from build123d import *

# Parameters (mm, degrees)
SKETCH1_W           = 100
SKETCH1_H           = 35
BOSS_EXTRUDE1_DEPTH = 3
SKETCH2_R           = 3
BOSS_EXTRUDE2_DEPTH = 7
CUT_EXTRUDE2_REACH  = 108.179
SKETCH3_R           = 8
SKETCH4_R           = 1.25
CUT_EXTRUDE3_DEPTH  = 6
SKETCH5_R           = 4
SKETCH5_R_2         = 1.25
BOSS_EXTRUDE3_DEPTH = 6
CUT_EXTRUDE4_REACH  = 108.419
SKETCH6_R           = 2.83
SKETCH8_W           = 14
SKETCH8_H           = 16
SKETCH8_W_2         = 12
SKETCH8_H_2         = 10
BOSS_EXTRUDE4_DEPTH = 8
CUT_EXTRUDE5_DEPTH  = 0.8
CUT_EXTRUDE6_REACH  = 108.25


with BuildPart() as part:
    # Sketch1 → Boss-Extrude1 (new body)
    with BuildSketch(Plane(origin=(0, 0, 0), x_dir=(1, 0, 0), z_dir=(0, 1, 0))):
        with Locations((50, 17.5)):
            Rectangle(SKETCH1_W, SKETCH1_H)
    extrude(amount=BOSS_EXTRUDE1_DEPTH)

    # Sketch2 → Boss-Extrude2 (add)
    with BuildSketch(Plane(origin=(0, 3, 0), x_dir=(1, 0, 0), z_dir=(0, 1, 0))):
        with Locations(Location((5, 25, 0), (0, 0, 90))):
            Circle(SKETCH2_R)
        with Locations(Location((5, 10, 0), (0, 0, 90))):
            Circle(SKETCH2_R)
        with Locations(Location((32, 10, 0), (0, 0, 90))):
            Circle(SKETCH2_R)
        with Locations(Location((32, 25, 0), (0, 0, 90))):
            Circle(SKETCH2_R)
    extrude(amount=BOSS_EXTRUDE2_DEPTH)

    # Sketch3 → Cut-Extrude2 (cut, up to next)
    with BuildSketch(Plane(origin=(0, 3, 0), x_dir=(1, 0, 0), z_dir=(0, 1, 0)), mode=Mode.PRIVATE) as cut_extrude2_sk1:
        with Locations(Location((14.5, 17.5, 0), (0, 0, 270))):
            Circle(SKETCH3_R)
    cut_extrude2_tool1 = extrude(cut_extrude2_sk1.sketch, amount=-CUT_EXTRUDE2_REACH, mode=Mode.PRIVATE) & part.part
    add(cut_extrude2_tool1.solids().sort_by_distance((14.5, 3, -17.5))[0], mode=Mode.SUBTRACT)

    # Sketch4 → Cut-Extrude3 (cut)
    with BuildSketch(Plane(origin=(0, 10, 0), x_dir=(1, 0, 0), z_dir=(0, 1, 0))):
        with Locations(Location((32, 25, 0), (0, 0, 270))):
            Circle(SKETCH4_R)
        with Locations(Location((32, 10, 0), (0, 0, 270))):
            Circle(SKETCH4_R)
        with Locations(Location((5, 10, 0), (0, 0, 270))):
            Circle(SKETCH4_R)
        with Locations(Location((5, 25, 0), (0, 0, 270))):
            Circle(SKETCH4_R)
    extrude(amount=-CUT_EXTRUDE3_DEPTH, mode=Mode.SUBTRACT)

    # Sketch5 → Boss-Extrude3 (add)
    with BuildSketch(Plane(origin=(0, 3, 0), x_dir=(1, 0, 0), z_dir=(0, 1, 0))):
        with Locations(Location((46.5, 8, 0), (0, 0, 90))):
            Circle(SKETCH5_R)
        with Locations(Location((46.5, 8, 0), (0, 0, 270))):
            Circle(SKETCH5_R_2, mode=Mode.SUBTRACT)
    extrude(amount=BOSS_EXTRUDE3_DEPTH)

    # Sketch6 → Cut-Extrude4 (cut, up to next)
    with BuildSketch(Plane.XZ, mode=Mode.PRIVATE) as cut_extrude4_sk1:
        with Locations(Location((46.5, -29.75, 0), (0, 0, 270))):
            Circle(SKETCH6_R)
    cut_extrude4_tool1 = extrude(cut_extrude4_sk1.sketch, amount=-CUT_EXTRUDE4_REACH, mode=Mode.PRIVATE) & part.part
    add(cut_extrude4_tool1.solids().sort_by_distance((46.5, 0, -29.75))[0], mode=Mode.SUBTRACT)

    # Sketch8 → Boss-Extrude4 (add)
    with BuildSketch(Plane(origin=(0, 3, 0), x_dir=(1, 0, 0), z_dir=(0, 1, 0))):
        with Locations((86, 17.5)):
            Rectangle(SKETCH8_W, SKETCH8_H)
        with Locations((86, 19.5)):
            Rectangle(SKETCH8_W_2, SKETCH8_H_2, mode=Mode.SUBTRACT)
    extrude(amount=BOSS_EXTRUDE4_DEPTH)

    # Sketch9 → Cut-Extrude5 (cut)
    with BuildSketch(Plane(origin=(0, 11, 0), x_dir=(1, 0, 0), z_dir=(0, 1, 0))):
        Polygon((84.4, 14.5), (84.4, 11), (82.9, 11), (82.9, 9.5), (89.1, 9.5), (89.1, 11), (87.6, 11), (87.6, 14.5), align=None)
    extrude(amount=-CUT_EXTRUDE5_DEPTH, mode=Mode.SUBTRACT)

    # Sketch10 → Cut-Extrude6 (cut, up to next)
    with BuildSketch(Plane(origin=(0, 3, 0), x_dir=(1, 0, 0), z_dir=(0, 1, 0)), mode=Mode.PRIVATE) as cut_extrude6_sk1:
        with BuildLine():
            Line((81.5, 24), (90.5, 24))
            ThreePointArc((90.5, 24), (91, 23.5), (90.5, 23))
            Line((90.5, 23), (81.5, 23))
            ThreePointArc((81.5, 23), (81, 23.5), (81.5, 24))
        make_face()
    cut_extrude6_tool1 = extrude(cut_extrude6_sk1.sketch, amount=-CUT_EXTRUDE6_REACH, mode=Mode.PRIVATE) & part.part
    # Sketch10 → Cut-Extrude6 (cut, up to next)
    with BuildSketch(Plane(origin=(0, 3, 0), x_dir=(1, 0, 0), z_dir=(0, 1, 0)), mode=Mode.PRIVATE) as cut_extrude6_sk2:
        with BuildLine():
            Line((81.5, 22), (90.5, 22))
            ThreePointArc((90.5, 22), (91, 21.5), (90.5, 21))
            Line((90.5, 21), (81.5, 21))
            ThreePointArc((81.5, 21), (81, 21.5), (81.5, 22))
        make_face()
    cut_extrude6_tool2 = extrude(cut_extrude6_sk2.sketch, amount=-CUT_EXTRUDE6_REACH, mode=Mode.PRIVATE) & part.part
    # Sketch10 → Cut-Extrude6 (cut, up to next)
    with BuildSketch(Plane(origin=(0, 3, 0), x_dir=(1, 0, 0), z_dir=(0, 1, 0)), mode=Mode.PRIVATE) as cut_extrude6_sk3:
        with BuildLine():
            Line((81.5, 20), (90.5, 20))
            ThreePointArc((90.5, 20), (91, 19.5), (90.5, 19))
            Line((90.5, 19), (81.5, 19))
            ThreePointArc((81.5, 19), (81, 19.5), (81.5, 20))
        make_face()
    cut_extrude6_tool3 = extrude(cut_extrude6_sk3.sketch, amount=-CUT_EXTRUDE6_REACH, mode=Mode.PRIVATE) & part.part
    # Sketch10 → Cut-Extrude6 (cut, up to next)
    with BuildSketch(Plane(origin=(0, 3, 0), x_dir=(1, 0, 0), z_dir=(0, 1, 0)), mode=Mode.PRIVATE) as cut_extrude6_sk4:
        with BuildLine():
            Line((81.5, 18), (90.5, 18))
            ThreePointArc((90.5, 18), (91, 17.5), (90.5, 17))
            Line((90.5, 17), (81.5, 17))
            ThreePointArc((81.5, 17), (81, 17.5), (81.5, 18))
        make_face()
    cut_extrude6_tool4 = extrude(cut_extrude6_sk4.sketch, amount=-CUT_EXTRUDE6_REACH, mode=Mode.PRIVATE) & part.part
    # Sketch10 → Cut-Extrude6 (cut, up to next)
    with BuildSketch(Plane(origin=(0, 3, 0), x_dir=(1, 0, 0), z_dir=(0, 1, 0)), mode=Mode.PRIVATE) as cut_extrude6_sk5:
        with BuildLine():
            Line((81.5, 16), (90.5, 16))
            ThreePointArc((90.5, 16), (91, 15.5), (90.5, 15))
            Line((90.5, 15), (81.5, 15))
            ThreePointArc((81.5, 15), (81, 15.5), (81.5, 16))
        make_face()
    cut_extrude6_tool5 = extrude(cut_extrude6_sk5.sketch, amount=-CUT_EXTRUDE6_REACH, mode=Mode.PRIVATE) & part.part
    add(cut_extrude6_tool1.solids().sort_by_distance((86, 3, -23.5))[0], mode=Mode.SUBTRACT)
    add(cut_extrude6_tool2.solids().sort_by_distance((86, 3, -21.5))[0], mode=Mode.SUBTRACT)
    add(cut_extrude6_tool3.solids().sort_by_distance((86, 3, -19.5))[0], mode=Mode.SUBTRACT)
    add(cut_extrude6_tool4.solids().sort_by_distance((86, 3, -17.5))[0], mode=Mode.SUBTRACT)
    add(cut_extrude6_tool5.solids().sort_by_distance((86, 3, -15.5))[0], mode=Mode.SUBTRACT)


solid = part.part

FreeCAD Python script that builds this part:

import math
import FreeCAD as App
import Part
import Sketcher
from FreeCAD import Vector

doc = App.newDocument("Part")
body = doc.addObject("PartDesign::Body", "Body")

# Sketch on XZ plane
sketch1 = body.newObject("Sketcher::SketchObject", "Sketch")
sketch1.AttachmentSupport = (doc.getObject("XZ_Plane"), [""])
sketch1.MapMode = "FlatFace"
sketch1.addGeometry([
    Part.LineSegment(Vector(0, -35, 0), Vector(0, 0, 0)),
    Part.LineSegment(Vector(0, 0, 0), Vector(100, 0, 0)),
    Part.LineSegment(Vector(100, 0, 0), Vector(100, -35, 0)),
    Part.LineSegment(Vector(100, -35, 0), Vector(0, -35, 0)),
], False)
sketch1.addConstraint([
    Sketcher.Constraint("Coincident", 0, 2, 1, 1),
    Sketcher.Constraint("Coincident", 1, 2, 2, 1),
    Sketcher.Constraint("Coincident", 2, 2, 3, 1),
    Sketcher.Constraint("Coincident", 3, 2, 0, 1),
    Sketcher.Constraint("Vertical", 0),
    Sketcher.Constraint("Horizontal", 1),
    Sketcher.Constraint("Vertical", 2),
    Sketcher.Constraint("Horizontal", 3),
    Sketcher.Constraint("Coincident", 0, 2, -1, 1),
    Sketcher.Constraint("DistanceX", 1, 1, 1, 2, 100.0),
    Sketcher.Constraint("DistanceY", 0, 1, 0, 2, 35.0),
])
pad1 = body.newObject("PartDesign::Pad", "Pad")
pad1.Profile = sketch1
pad1.Length = 3
pad1.Reversed = True

# Sketch on XZ plane
sketch2 = body.newObject("Sketcher::SketchObject", "Sketch001")
sketch2.AttachmentSupport = (doc.getObject("XZ_Plane"), [""])
sketch2.MapMode = "FlatFace"
sketch2.AttachmentOffset = App.Placement(Vector(0, 0, -3), App.Rotation())
sketch2.addGeometry([
    Part.Circle(Vector(5, -25, 0), Vector(0, 0, 1), 3),
    Part.Circle(Vector(5, -10, 0), Vector(0, 0, 1), 3),
    Part.Circle(Vector(32, -10, 0), Vector(0, 0, 1), 3),
    Part.Circle(Vector(32, -25, 0), Vector(0, 0, 1), 3),
], False)
sketch2.addConstraint([
    Sketcher.Constraint("Equal", 0, 1),
    Sketcher.Constraint("Equal", 1, 2),
    Sketcher.Constraint("Equal", 2, 3),
    Sketcher.Constraint("Horizontal", 1, 3, 2, 3),
    Sketcher.Constraint("Horizontal", 0, 3, 3, 3),
    Sketcher.Constraint("Vertical", 0, 3, 1, 3),
    Sketcher.Constraint("Vertical", 2, 3, 3, 3),
    Sketcher.Constraint("Diameter", 0, 6.0),
    Sketcher.Constraint("DistanceX", -1, 1, 0, 3, 5.0),
    Sketcher.Constraint("DistanceY", 0, 3, -1, 1, 25.0),
    Sketcher.Constraint("DistanceY", 1, 3, -1, 1, 10.0),
    Sketcher.Constraint("DistanceX", -1, 1, 2, 3, 32.0),
])
pad2 = body.newObject("PartDesign::Pad", "Pad001")
pad2.Profile = sketch2
pad2.Length = 7
pad2.Reversed = True

# Sketch on XZ plane
sketch3 = body.newObject("Sketcher::SketchObject", "Sketch002")
sketch3.AttachmentSupport = (doc.getObject("XZ_Plane"), [""])
sketch3.MapMode = "FlatFace"
sketch3.AttachmentOffset = App.Placement(Vector(0, 0, -3), App.Rotation())
sketch3.addGeometry(Part.Circle(Vector(14, -18, 0), Vector(0, 0, 1), 8), False)
sketch3.addConstraint([
    Sketcher.Constraint("Diameter", 0, 16.0),
    Sketcher.Constraint("DistanceX", -1, 1, 0, 3, 14.5),
    Sketcher.Constraint("DistanceY", 0, 3, -1, 1, 17.5),
])
pocket1 = body.newObject("PartDesign::Pocket", "Pocket")
pocket1.Profile = sketch3
pocket1.Type = "UpToFirst"
pocket1.Reversed = True

# Sketch on XZ plane
sketch4 = body.newObject("Sketcher::SketchObject", "Sketch003")
sketch4.AttachmentSupport = (doc.getObject("XZ_Plane"), [""])
sketch4.MapMode = "FlatFace"
sketch4.AttachmentOffset = App.Placement(Vector(0, 0, -10), App.Rotation())
sketch4.addGeometry([
    Part.Circle(Vector(32, -25, 0), Vector(0, 0, 1), 1.2),
    Part.Circle(Vector(32, -10, 0), Vector(0, 0, 1), 1.2),
    Part.Circle(Vector(5, -10, 0), Vector(0, 0, 1), 1.2),
    Part.Circle(Vector(5, -25, 0), Vector(0, 0, 1), 1.2),
], False)
sketch4.addConstraint([
    Sketcher.Constraint("Equal", 0, 1),
    Sketcher.Constraint("Equal", 1, 2),
    Sketcher.Constraint("Equal", 2, 3),
    Sketcher.Constraint("Horizontal", 1, 3, 2, 3),
    Sketcher.Constraint("Horizontal", 0, 3, 3, 3),
    Sketcher.Constraint("Vertical", 0, 3, 1, 3),
    Sketcher.Constraint("Vertical", 2, 3, 3, 3),
    Sketcher.Constraint("Diameter", 0, 2.5),
    Sketcher.Constraint("DistanceX", -1, 1, 0, 3, 32.0),
    Sketcher.Constraint("DistanceY", 0, 3, -1, 1, 25.0),
    Sketcher.Constraint("DistanceY", 1, 3, -1, 1, 10.0),
    Sketcher.Constraint("DistanceX", -1, 1, 2, 3, 5.0),
])
pocket2 = body.newObject("PartDesign::Pocket", "Pocket001")
pocket2.Profile = sketch4
pocket2.Length = 6
pocket2.Reversed = True

# Sketch on XZ plane
sketch5 = body.newObject("Sketcher::SketchObject", "Sketch004")
sketch5.AttachmentSupport = (doc.getObject("XZ_Plane"), [""])
sketch5.MapMode = "FlatFace"
sketch5.AttachmentOffset = App.Placement(Vector(0, 0, -3), App.Rotation())
sketch5.addGeometry([
    Part.Circle(Vector(46.5, -8, 0), Vector(0, 0, 1), 4),
    Part.Circle(Vector(46.5, -8, 0), Vector(0, 0, 1), 1.2),
], False)
sketch5.addConstraint([
    Sketcher.Constraint("Coincident", 1, 3, 0, 3),
    Sketcher.Constraint("Diameter", 0, 8.0),
    Sketcher.Constraint("Diameter", 1, 2.5),
    Sketcher.Constraint("DistanceY", 0, 3, -1, 1, 8.0),
    Sketcher.Constraint("DistanceX", -1, 1, 0, 3, 46.5),
])
pad3 = body.newObject("PartDesign::Pad", "Pad002")
pad3.Profile = sketch5
pad3.Length = 6
pad3.Reversed = True

# Sketch on XZ plane
sketch6 = body.newObject("Sketcher::SketchObject", "Sketch005")
sketch6.AttachmentSupport = (doc.getObject("XZ_Plane"), [""])
sketch6.MapMode = "FlatFace"
sketch6.addGeometry(Part.Circle(Vector(46.5, -29.8, 0), Vector(0, 0, 1), 2.8), False)
sketch6.addConstraint([
    Sketcher.Constraint("Diameter", 0, 5.66),
    Sketcher.Constraint("DistanceX", -1, 1, 0, 3, 46.5),
    Sketcher.Constraint("DistanceY", 0, 3, -1, 1, 29.75),
])
pocket3 = body.newObject("PartDesign::Pocket", "Pocket002")
pocket3.Profile = sketch6
pocket3.Type = "UpToFirst"

# Sketch on XZ plane
sketch7 = body.newObject("Sketcher::SketchObject", "Sketch006")
sketch7.AttachmentSupport = (doc.getObject("XZ_Plane"), [""])
sketch7.MapMode = "FlatFace"
sketch7.AttachmentOffset = App.Placement(Vector(0, 0, -3), App.Rotation())
sketch7.addGeometry([
    Part.LineSegment(Vector(79, -26, 0), Vector(79, -10, 0)),  # 0
    Part.LineSegment(Vector(79, -10, 0), Vector(93, -10, 0)),  # 1
    Part.LineSegment(Vector(93, -10, 0), Vector(93, -26, 0)),  # 2
    Part.LineSegment(Vector(93, -26, 0), Vector(79, -26, 0)),  # 3
    Part.LineSegment(Vector(92, -14, 0), Vector(80, -14, 0)),  # 4
    Part.LineSegment(Vector(80, -14, 0), Vector(80, -24, 0)),  # 5
    Part.LineSegment(Vector(80, -24, 0), Vector(92, -24, 0)),  # 6
    Part.LineSegment(Vector(92, -24, 0), Vector(92, -14, 0)),  # 7
], False)
sketch7.addConstraint([
    Sketcher.Constraint("Coincident", 0, 2, 1, 1),
    Sketcher.Constraint("Coincident", 1, 2, 2, 1),
    Sketcher.Constraint("Coincident", 2, 2, 3, 1),
    Sketcher.Constraint("Coincident", 3, 2, 0, 1),
    Sketcher.Constraint("Coincident", 4, 2, 5, 1),
    Sketcher.Constraint("Coincident", 5, 2, 6, 1),
    Sketcher.Constraint("Coincident", 6, 2, 7, 1),
    Sketcher.Constraint("Coincident", 7, 2, 4, 1),
    Sketcher.Constraint("Vertical", 0),
    Sketcher.Constraint("Horizontal", 1),
    Sketcher.Constraint("Vertical", 2),
    Sketcher.Constraint("Horizontal", 3),
    Sketcher.Constraint("Horizontal", 4),
    Sketcher.Constraint("Vertical", 5),
    Sketcher.Constraint("Horizontal", 6),
    Sketcher.Constraint("Vertical", 7),
    Sketcher.Constraint("DistanceX", 1, 1, 1, 2, 14.0),
    Sketcher.Constraint("DistanceX", 4, 2, 4, 1, 12.0),
    Sketcher.Constraint("DistanceY", 0, 1, 0, 2, 16.0),
    Sketcher.Constraint("DistanceY", 5, 2, 5, 1, 10.0),
    Sketcher.Constraint("DistanceX", -1, 1, 0, 2, 79.0),
    Sketcher.Constraint("DistanceX", -1, 1, 4, 2, 80.0),
    Sketcher.Constraint("DistanceY", 4, 2, 0, 2, 5.0),
    Sketcher.Constraint("DistanceY", 0, 2, -1, 1, 9.5),
])
pad4 = body.newObject("PartDesign::Pad", "Pad003")
pad4.Profile = sketch7
pad4.Length = 8
pad4.Reversed = True

# Sketch on XZ plane
sketch8 = body.newObject("Sketcher::SketchObject", "Sketch007")
sketch8.AttachmentSupport = (doc.getObject("XZ_Plane"), [""])
sketch8.MapMode = "FlatFace"
sketch8.AttachmentOffset = App.Placement(Vector(0, 0, -11), App.Rotation())
sketch8.addGeometry([
    Part.LineSegment(Vector(84.4, -14.5, 0), Vector(84.4, -11, 0)),  # 0
    Part.LineSegment(Vector(84.4, -11, 0), Vector(82.9, -11, 0)),  # 1
    Part.LineSegment(Vector(82.9, -11, 0), Vector(82.9, -9.5, 0)),  # 2
    Part.LineSegment(Vector(82.9, -9.5, 0), Vector(89.1, -9.5, 0)),  # 3
    Part.LineSegment(Vector(89.1, -9.5, 0), Vector(89.1, -11, 0)),  # 4
    Part.LineSegment(Vector(89.1, -11, 0), Vector(87.6, -11, 0)),  # 5
    Part.LineSegment(Vector(87.6, -11, 0), Vector(87.6, -14.5, 0)),  # 6
    Part.LineSegment(Vector(87.6, -14.5, 0), Vector(84.4, -14.5, 0)),  # 7
], False)
sketch8.addConstraint([
    Sketcher.Constraint("Coincident", 0, 2, 1, 1),
    Sketcher.Constraint("Coincident", 1, 2, 2, 1),
    Sketcher.Constraint("Coincident", 2, 2, 3, 1),
    Sketcher.Constraint("Coincident", 3, 2, 4, 1),
    Sketcher.Constraint("Coincident", 4, 2, 5, 1),
    Sketcher.Constraint("Coincident", 5, 2, 6, 1),
    Sketcher.Constraint("Coincident", 6, 2, 7, 1),
    Sketcher.Constraint("Coincident", 7, 2, 0, 1),
    Sketcher.Constraint("Vertical", 0),
    Sketcher.Constraint("Horizontal", 1),
    Sketcher.Constraint("Vertical", 2),
    Sketcher.Constraint("Horizontal", 3),
    Sketcher.Constraint("Vertical", 4),
    Sketcher.Constraint("Horizontal", 5),
    Sketcher.Constraint("Vertical", 6),
    Sketcher.Constraint("Horizontal", 7),
    Sketcher.Constraint("Horizontal", 1, 2, 4, 2),
    Sketcher.Constraint("Equal", 1, 5),
    Sketcher.Constraint("Equal", 5, 2),
    Sketcher.Constraint("DistanceX", 1, 2, 1, 1, 1.5),
    Sketcher.Constraint("DistanceX", 3, 1, 3, 2, 6.2),
    Sketcher.Constraint("DistanceY", 0, 1, 0, 2, 3.5),
    Sketcher.Constraint("DistanceY", 0, 2, -1, 1, 11.0),
    Sketcher.Constraint("DistanceX", -1, 1, 0, 2, 84.4),
])
pocket4 = body.newObject("PartDesign::Pocket", "Pocket003")
pocket4.Profile = sketch8
pocket4.Length = 0.8
pocket4.Reversed = True

# Sketch on XZ plane
sketch9 = body.newObject("Sketcher::SketchObject", "Sketch008")
sketch9.AttachmentSupport = (doc.getObject("XZ_Plane"), [""])
sketch9.MapMode = "FlatFace"
sketch9.AttachmentOffset = App.Placement(Vector(0, 0, -3), App.Rotation())
sketch9.addGeometry([
    Part.LineSegment(Vector(90.5, -24, 0), Vector(81.5, -24, 0)),
    Part.ArcOfCircle(Part.Circle(Vector(81.5, -23.5, 0), Vector(0, 0, 1), 0.5), math.radians(90), math.radians(270)),
    Part.LineSegment(Vector(81.5, -23, 0), Vector(90.5, -23, 0)),
    Part.ArcOfCircle(Part.Circle(Vector(90.5, -23.5, 0), Vector(0, 0, 1), 0.5), math.radians(-90), math.radians(90)),
], False)
sketch9.addConstraint([
    Sketcher.Constraint("Tangent", 0, 2, 1, 2),
    Sketcher.Constraint("Tangent", 1, 1, 2, 1),
    Sketcher.Constraint("Tangent", 2, 2, 3, 2),
    Sketcher.Constraint("Tangent", 3, 1, 0, 1),
    Sketcher.Constraint("Horizontal", 0),
    Sketcher.Constraint("Horizontal", 2),
    Sketcher.Constraint("Radius", 1, 0.5),
    Sketcher.Constraint("DistanceX", 0, 2, 0, 1, 9.0),
    Sketcher.Constraint("DistanceY", 0, 2, -1, 1, 24.0),
    Sketcher.Constraint("DistanceX", -1, 1, 1, 3, 81.5),
])
pocket5 = body.newObject("PartDesign::Pocket", "Pocket004")
pocket5.Profile = sketch9
pocket5.Type = "UpToFirst"
pocket5.Reversed = True

# Sketch on XZ plane
sketch10 = body.newObject("Sketcher::SketchObject", "Sketch009")
sketch10.AttachmentSupport = (doc.getObject("XZ_Plane"), [""])
sketch10.MapMode = "FlatFace"
sketch10.AttachmentOffset = App.Placement(Vector(0, 0, -3), App.Rotation())
sketch10.addGeometry([
    Part.LineSegment(Vector(90.5, -22, 0), Vector(81.5, -22, 0)),
    Part.ArcOfCircle(Part.Circle(Vector(81.5, -21.5, 0), Vector(0, 0, 1), 0.5), math.radians(90), math.radians(270)),
    Part.LineSegment(Vector(81.5, -21, 0), Vector(90.5, -21, 0)),
    Part.ArcOfCircle(Part.Circle(Vector(90.5, -21.5, 0), Vector(0, 0, 1), 0.5), math.radians(-90), math.radians(90)),
], False)
sketch10.addConstraint([
    Sketcher.Constraint("Tangent", 0, 2, 1, 2),
    Sketcher.Constraint("Tangent", 1, 1, 2, 1),
    Sketcher.Constraint("Tangent", 2, 2, 3, 2),
    Sketcher.Constraint("Tangent", 3, 1, 0, 1),
    Sketcher.Constraint("Horizontal", 0),
    Sketcher.Constraint("Horizontal", 2),
    Sketcher.Constraint("Radius", 1, 0.5),
    Sketcher.Constraint("DistanceX", 0, 2, 0, 1, 9.0),
    Sketcher.Constraint("DistanceY", 0, 2, -1, 1, 22.0),
    Sketcher.Constraint("DistanceX", -1, 1, 1, 3, 81.5),
])
pocket6 = body.newObject("PartDesign::Pocket", "Pocket005")
pocket6.Profile = sketch10
pocket6.Type = "UpToFirst"
pocket6.Reversed = True

# Sketch on XZ plane
sketch11 = body.newObject("Sketcher::SketchObject", "Sketch010")
sketch11.AttachmentSupport = (doc.getObject("XZ_Plane"), [""])
sketch11.MapMode = "FlatFace"
sketch11.AttachmentOffset = App.Placement(Vector(0, 0, -3), App.Rotation())
sketch11.addGeometry([
    Part.LineSegment(Vector(90.5, -20, 0), Vector(81.5, -20, 0)),
    Part.ArcOfCircle(Part.Circle(Vector(81.5, -19.5, 0), Vector(0, 0, 1), 0.5), math.radians(90), math.radians(270)),
    Part.LineSegment(Vector(81.5, -19, 0), Vector(90.5, -19, 0)),
    Part.ArcOfCircle(Part.Circle(Vector(90.5, -19.5, 0), Vector(0, 0, 1), 0.5), math.radians(-90), math.radians(90)),
], False)
sketch11.addConstraint([
    Sketcher.Constraint("Tangent", 0, 2, 1, 2),
    Sketcher.Constraint("Tangent", 1, 1, 2, 1),
    Sketcher.Constraint("Tangent", 2, 2, 3, 2),
    Sketcher.Constraint("Tangent", 3, 1, 0, 1),
    Sketcher.Constraint("Horizontal", 0),
    Sketcher.Constraint("Horizontal", 2),
    Sketcher.Constraint("Radius", 1, 0.5),
    Sketcher.Constraint("DistanceX", 0, 2, 0, 1, 9.0),
    Sketcher.Constraint("DistanceY", 0, 2, -1, 1, 20.0),
    Sketcher.Constraint("DistanceX", -1, 1, 1, 3, 81.5),
])
pocket7 = body.newObject("PartDesign::Pocket", "Pocket006")
pocket7.Profile = sketch11
pocket7.Type = "UpToFirst"
pocket7.Reversed = True

# Sketch on XZ plane
sketch12 = body.newObject("Sketcher::SketchObject", "Sketch011")
sketch12.AttachmentSupport = (doc.getObject("XZ_Plane"), [""])
sketch12.MapMode = "FlatFace"
sketch12.AttachmentOffset = App.Placement(Vector(0, 0, -3), App.Rotation())
sketch12.addGeometry([
    Part.LineSegment(Vector(90.5, -18, 0), Vector(81.5, -18, 0)),
    Part.ArcOfCircle(Part.Circle(Vector(81.5, -17.5, 0), Vector(0, 0, 1), 0.5), math.radians(90), math.radians(270)),
    Part.LineSegment(Vector(81.5, -17, 0), Vector(90.5, -17, 0)),
    Part.ArcOfCircle(Part.Circle(Vector(90.5, -17.5, 0), Vector(0, 0, 1), 0.5), math.radians(-90), math.radians(90)),
], False)
sketch12.addConstraint([
    Sketcher.Constraint("Tangent", 0, 2, 1, 2),
    Sketcher.Constraint("Tangent", 1, 1, 2, 1),
    Sketcher.Constraint("Tangent", 2, 2, 3, 2),
    Sketcher.Constraint("Tangent", 3, 1, 0, 1),
    Sketcher.Constraint("Horizontal", 0),
    Sketcher.Constraint("Horizontal", 2),
    Sketcher.Constraint("Radius", 1, 0.5),
    Sketcher.Constraint("DistanceX", 0, 2, 0, 1, 9.0),
    Sketcher.Constraint("DistanceY", 0, 2, -1, 1, 18.0),
    Sketcher.Constraint("DistanceX", -1, 1, 1, 3, 81.5),
])
pocket8 = body.newObject("PartDesign::Pocket", "Pocket007")
pocket8.Profile = sketch12
pocket8.Type = "UpToFirst"
pocket8.Reversed = True

# Sketch on XZ plane
sketch13 = body.newObject("Sketcher::SketchObject", "Sketch012")
sketch13.AttachmentSupport = (doc.getObject("XZ_Plane"), [""])
sketch13.MapMode = "FlatFace"
sketch13.AttachmentOffset = App.Placement(Vector(0, 0, -3), App.Rotation())
sketch13.addGeometry([
    Part.LineSegment(Vector(90.5, -16, 0), Vector(81.5, -16, 0)),
    Part.ArcOfCircle(Part.Circle(Vector(81.5, -15.5, 0), Vector(0, 0, 1), 0.5), math.radians(90), math.radians(270)),
    Part.LineSegment(Vector(81.5, -15, 0), Vector(90.5, -15, 0)),
    Part.ArcOfCircle(Part.Circle(Vector(90.5, -15.5, 0), Vector(0, 0, 1), 0.5), math.radians(-90), math.radians(90)),
], False)
sketch13.addConstraint([
    Sketcher.Constraint("Tangent", 0, 2, 1, 2),
    Sketcher.Constraint("Tangent", 1, 1, 2, 1),
    Sketcher.Constraint("Tangent", 2, 2, 3, 2),
    Sketcher.Constraint("Tangent", 3, 1, 0, 1),
    Sketcher.Constraint("Horizontal", 0),
    Sketcher.Constraint("Horizontal", 2),
    Sketcher.Constraint("Radius", 1, 0.5),
    Sketcher.Constraint("DistanceX", 0, 2, 0, 1, 9.0),
    Sketcher.Constraint("DistanceY", 0, 2, -1, 1, 16.0),
    Sketcher.Constraint("DistanceX", -1, 1, 1, 3, 81.5),
])
pocket9 = body.newObject("PartDesign::Pocket", "Pocket008")
pocket9.Profile = sketch13
pocket9.Type = "UpToFirst"
pocket9.Reversed = True

doc.recompute()
